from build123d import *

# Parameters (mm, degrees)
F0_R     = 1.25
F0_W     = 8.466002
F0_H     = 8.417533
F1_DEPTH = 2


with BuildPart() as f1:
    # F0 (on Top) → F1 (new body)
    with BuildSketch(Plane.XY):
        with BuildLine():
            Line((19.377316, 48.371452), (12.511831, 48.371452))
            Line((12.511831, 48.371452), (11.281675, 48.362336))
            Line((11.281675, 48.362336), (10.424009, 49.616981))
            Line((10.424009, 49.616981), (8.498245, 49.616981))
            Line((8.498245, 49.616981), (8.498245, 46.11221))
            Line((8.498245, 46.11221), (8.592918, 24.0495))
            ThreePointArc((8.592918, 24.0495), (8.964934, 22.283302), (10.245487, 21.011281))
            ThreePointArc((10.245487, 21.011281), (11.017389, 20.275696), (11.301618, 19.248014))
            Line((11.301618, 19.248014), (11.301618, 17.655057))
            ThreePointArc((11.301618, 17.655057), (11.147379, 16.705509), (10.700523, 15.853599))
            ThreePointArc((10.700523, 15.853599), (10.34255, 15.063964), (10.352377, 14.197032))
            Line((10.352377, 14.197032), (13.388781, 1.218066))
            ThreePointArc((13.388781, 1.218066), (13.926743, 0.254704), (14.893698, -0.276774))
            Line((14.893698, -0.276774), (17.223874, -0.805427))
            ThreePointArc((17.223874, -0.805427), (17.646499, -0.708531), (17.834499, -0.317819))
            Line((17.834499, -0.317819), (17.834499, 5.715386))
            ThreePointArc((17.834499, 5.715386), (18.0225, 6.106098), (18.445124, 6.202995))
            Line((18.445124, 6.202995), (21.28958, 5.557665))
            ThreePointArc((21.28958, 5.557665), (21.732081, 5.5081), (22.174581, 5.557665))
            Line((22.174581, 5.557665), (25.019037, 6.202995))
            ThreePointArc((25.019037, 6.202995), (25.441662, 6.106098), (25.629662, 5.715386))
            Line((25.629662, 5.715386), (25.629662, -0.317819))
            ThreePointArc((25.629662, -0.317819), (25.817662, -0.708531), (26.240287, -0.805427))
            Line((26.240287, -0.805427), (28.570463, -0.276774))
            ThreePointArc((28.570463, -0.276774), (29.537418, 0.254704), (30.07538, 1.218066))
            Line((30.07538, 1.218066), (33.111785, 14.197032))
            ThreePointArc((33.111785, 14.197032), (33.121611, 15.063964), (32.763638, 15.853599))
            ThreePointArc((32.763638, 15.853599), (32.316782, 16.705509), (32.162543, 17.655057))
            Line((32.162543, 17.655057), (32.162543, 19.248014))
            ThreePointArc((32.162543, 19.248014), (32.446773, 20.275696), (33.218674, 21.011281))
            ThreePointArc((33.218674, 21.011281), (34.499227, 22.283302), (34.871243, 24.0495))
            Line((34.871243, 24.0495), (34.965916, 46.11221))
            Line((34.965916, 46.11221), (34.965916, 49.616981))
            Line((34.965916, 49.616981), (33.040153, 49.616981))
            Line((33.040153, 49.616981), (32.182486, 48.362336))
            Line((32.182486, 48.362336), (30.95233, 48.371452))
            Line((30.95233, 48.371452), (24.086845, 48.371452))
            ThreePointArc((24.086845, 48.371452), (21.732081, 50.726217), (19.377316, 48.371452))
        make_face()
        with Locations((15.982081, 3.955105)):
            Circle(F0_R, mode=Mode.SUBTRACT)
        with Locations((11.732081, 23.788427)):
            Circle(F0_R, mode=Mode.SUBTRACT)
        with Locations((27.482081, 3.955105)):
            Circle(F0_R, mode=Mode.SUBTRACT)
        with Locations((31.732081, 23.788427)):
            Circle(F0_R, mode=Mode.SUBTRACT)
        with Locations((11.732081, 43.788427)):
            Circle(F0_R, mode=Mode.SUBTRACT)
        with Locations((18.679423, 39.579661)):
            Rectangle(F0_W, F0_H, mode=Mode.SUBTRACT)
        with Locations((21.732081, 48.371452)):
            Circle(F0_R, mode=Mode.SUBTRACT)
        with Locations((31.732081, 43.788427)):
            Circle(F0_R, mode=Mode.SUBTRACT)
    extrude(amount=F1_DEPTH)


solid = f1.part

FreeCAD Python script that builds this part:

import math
import FreeCAD as App
import Part
import Sketcher
Q = App.Units.Quantity

doc = App.newDocument("Part")
body = doc.addObject("PartDesign::Body", "Body")

sketch1 = body.newObject("Sketcher::SketchObject", "Sketch")
sketch1.AttachmentSupport = (doc.getObject("XY_Plane"), [""])
sketch1.MapMode = "FlatFace"
sketch1.addGeometry([
    Part.LineSegment(App.Vector(19.377316, 48.371452, 0), App.Vector(12.511831, 48.371452, 0)),
    Part.LineSegment(App.Vector(12.511831, 48.371452, 0), App.Vector(11.281675, 48.362336, 0)),
    Part.LineSegment(App.Vector(11.281675, 48.362336, 0), App.Vector(10.424009, 49.616981, 0)),
    Part.LineSegment(App.Vector(10.424009, 49.616981, 0), App.Vector(8.498245, 49.616981, 0)),
    Part.LineSegment(App.Vector(8.498245, 49.616981, 0), App.Vector(8.498245, 46.11221, 0)),
    Part.LineSegment(App.Vector(8.498245, 46.11221, 0), App.Vector(8.592918, 24.0495, 0)),
    Part.ArcOfCircle(Part.Circle(App.Vector(11.73208, 23.788427, 0), App.Vector(0, 0, 1), 3.149999), math.radians(175.245847), math.radians(241.840069)),
    Part.ArcOfCircle(Part.Circle(App.Vector(9.301619, 19.248015, 0), App.Vector(0, 0, 1), 1.999999), math.radians(-0.000016), math.radians(61.84008)),
    Part.LineSegment(App.Vector(11.301618, 19.248014, 0), App.Vector(11.301618, 17.655057, 0)),
    Part.ArcOfCircle(Part.Circle(App.Vector(8.301615, 17.655059, 0), App.Vector(0, 0, 1), 3.000003), math.radians(-36.904721), math.radians(-0.000038)),
    Part.ArcOfCircle(Part.Circle(App.Vector(12.29979, 14.652628, 0), App.Vector(0, 0, 1), 1.999996), math.radians(143.095257), math.radians(193.1675)),
    Part.LineSegment(App.Vector(10.352377, 14.197032, 0), App.Vector(13.388781, 1.218066, 0)),
    Part.ArcOfCircle(Part.Circle(App.Vector(15.336197, 1.673659, 0), App.Vector(0, 0, 1), 1.999999), math.radians(-166.832607), math.radians(-102.78245)),
    Part.LineSegment(App.Vector(14.893698, -0.276774, 0), App.Vector(17.223874, -0.805427, 0)),
    Part.ArcOfCircle(Part.Circle(App.Vector(17.3345, -0.317819, 0), App.Vector(0, 0, 1), 0.499999), math.radians(-102.782535), math.radians(0.000008)),
    Part.LineSegment(App.Vector(17.834499, -0.317819, 0), App.Vector(17.834499, 5.715386, 0)),
    Part.ArcOfCircle(Part.Circle(App.Vector(18.334501, 5.715384, 0), App.Vector(0, 0, 1), 0.500002), math.radians(77.2178), math.radians(179.999788)),
    Part.LineSegment(App.Vector(18.445124, 6.202995, 0), App.Vector(21.28958, 5.557665, 0)),
    Part.ArcOfCircle(Part.Circle(App.Vector(21.73208, 7.508134, 0), App.Vector(0, 0, 1), 2.000034), math.radians(-102.782255), math.radians(-77.217745)),
    Part.LineSegment(App.Vector(22.174581, 5.557665, 0), App.Vector(25.019037, 6.202995, 0)),
    Part.ArcOfCircle(Part.Circle(App.Vector(25.129661, 5.715385, 0), App.Vector(0, 0, 1), 0.500001), math.radians(0.000063), math.radians(102.782349)),
    Part.LineSegment(App.Vector(25.629662, 5.715386, 0), App.Vector(25.629662, -0.317819, 0)),
    Part.ArcOfCircle(Part.Circle(App.Vector(26.129661, -0.317819, 0), App.Vector(0, 0, 1), 0.499999), math.radians(179.999992), math.radians(282.782535)),
    Part.LineSegment(App.Vector(26.240287, -0.805427, 0), App.Vector(28.570463, -0.276774, 0)),
    Part.ArcOfCircle(Part.Circle(App.Vector(28.127964, 1.673659, 0), App.Vector(0, 0, 1), 1.999999), math.radians(-77.21755), math.radians(-13.167393)),
    Part.LineSegment(App.Vector(30.07538, 1.218066, 0), App.Vector(33.111785, 14.197032, 0)),
    Part.ArcOfCircle(Part.Circle(App.Vector(31.164366, 14.652626, 0), App.Vector(0, 0, 1), 2.000002), math.radians(-13.167401), math.radians(36.90471)),
    Part.ArcOfCircle(Part.Circle(App.Vector(35.162546, 17.655059, 0), App.Vector(0, 0, 1), 3.000003), math.radians(-179.999962), math.radians(-143.095279)),
    Part.LineSegment(App.Vector(32.162543, 17.655057, 0), App.Vector(32.162543, 19.248014, 0)),
    Part.ArcOfCircle(Part.Circle(App.Vector(34.162547, 19.248011, 0), App.Vector(0, 0, 1), 2.000004), math.radians(118.160009), math.radians(179.999928)),
    Part.ArcOfCircle(Part.Circle(App.Vector(31.732081, 23.788427, 0), App.Vector(0, 0, 1), 3.149999), math.radians(-61.840069), math.radians(4.754153)),
    Part.LineSegment(App.Vector(34.871243, 24.0495, 0), App.Vector(34.965916, 46.11221, 0)),
    Part.LineSegment(App.Vector(34.965916, 46.11221, 0), App.Vector(34.965916, 49.616981, 0)),
    Part.LineSegment(App.Vector(34.965916, 49.616981, 0), App.Vector(33.040153, 49.616981, 0)),
    Part.LineSegment(App.Vector(33.040153, 49.616981, 0), App.Vector(32.182486, 48.362336, 0)),
    Part.LineSegment(App.Vector(32.182486, 48.362336, 0), App.Vector(30.95233, 48.371452, 0)),
    Part.LineSegment(App.Vector(30.95233, 48.371452, 0), App.Vector(24.086845, 48.371452, 0)),
    Part.ArcOfCircle(Part.Circle(App.Vector(21.73208, 48.371452, 0), App.Vector(0, 0, 1), 2.354764), math.radians(-0.000012), math.radians(180.000012)),
    Part.Circle(App.Vector(15.982081, 3.955105, 0), App.Vector(0, 0, 1), 1.25),
    Part.Circle(App.Vector(11.732081, 23.788427, 0), App.Vector(0, 0, 1), 1.25),
    Part.Circle(App.Vector(27.482081, 3.955105, 0), App.Vector(0, 0, 1), 1.25),
    Part.Circle(App.Vector(31.732081, 23.788427, 0), App.Vector(0, 0, 1), 1.25),
    Part.Circle(App.Vector(11.732081, 43.788427, 0), App.Vector(0, 0, 1), 1.25),
    Part.LineSegment(App.Vector(22.912424, 35.370894, 0), App.Vector(14.446422, 35.370894, 0)),
    Part.LineSegment(App.Vector(14.446422, 35.370894, 0), App.Vector(14.446422, 43.788427, 0)),
    Part.LineSegment(App.Vector(14.446422, 43.788427, 0), App.Vector(22.912424, 43.788427, 0)),
    Part.LineSegment(App.Vector(22.912424, 43.788427, 0), App.Vector(22.912424, 35.370894, 0)),
    Part.Circle(App.Vector(21.732081, 48.371452, 0), App.Vector(0, 0, 1), 1.25),
    Part.Circle(App.Vector(31.732081, 43.788427, 0), App.Vector(0, 0, 1), 1.25),
], False)
sketch1.addConstraint([
    Sketcher.Constraint("Coincident", 0, 2, 1, 1),
    Sketcher.Constraint("Coincident", 1, 2, 2, 1),
    Sketcher.Constraint("Coincident", 2, 2, 3, 1),
    Sketcher.Constraint("Coincident", 3, 2, 4, 1),
    Sketcher.Constraint("Coincident", 4, 2, 5, 1),
    Sketcher.Constraint("Coincident", 5, 2, 6, 1),
    Sketcher.Constraint("Tangent", 6, 2, 7, 2),
    Sketcher.Constraint("Tangent", 7, 1, 8, 1),
    Sketcher.Constraint("Tangent", 8, 2, 9, 2),
    Sketcher.Constraint("Tangent", 9, 1, 10, 1),
    Sketcher.Constraint("Tangent", 10, 2, 11, 1),
    Sketcher.Constraint("Tangent", 11, 2, 12, 1),
    Sketcher.Constraint("Tangent", 12, 2, 13, 1),
    Sketcher.Constraint("Tangent", 13, 2, 14, 1),
    Sketcher.Constraint("Tangent", 14, 2, 15, 1),
    Sketcher.Constraint("Coincident", 15, 2, 16, 2),
    Sketcher.Constraint("Coincident", 16, 1, 17, 1),
    Sketcher.Constraint("Coincident", 17, 2, 18, 1),
    Sketcher.Constraint("Coincident", 18, 2, 19, 1),
    Sketcher.Constraint("Coincident", 19, 2, 20, 2),
    Sketcher.Constraint("Tangent", 20, 1, 21, 1),
    Sketcher.Constraint("Tangent", 21, 2, 22, 1),
    Sketcher.Constraint("Tangent", 22, 2, 23, 1),
    Sketcher.Constraint("Tangent", 23, 2, 24, 1),
    Sketcher.Constraint("Tangent", 24, 2, 25, 1),
    Sketcher.Constraint("Tangent", 25, 2, 26, 1),
    Sketcher.Constraint("Tangent", 26, 2, 27, 2),
    Sketcher.Constraint("Tangent", 27, 1, 28, 1),
    Sketcher.Constraint("Tangent", 28, 2, 29, 2),
    Sketcher.Constraint("Tangent", 29, 1, 30, 1),
    Sketcher.Constraint("Coincident", 30, 2, 31, 1),
    Sketcher.Constraint("Coincident", 31, 2, 32, 1),
    Sketcher.Constraint("Coincident", 32, 2, 33, 1),
    Sketcher.Constraint("Coincident", 33, 2, 34, 1),
    Sketcher.Constraint("Coincident", 34, 2, 35, 1),
    Sketcher.Constraint("Coincident", 35, 2, 36, 1),
    Sketcher.Constraint("Coincident", 36, 2, 37, 1),
    Sketcher.Constraint("Coincident", 37, 2, 0, 1),
    Sketcher.Constraint("Coincident", 43, 2, 44, 1),
    Sketcher.Constraint("Coincident", 44, 2, 45, 1),
    Sketcher.Constraint("Coincident", 45, 2, 46, 1),
    Sketcher.Constraint("Coincident", 46, 2, 43, 1),
    Sketcher.Constraint("Horizontal", 0),
    Sketcher.Constraint("Horizontal", 3),
    Sketcher.Constraint("Vertical", 4),
    Sketcher.Constraint("Vertical", 8),
    Sketcher.Constraint("Vertical", 15),
    Sketcher.Constraint("Vertical", 21),
    Sketcher.Constraint("Vertical", 28),
    Sketcher.Constraint("Vertical", 32),
    Sketcher.Constraint("Horizontal", 33),
    Sketcher.Constraint("Horizontal", 36),
    Sketcher.Constraint("Horizontal", 43),
    Sketcher.Constraint("Vertical", 44),
    Sketcher.Constraint("Horizontal", 45),
    Sketcher.Constraint("Vertical", 46),
    Sketcher.Constraint("Coincident", 39, 3, 6, 3),
    Sketcher.Constraint("Coincident", 41, 3, 30, 3),
    Sketcher.Constraint("Coincident", 47, 3, 37, 3),
    Sketcher.Constraint("Equal", 7, 12),
    Sketcher.Constraint("Equal", 16, 20),
    Sketcher.Constraint("Equal", 20, 22),
    Sketcher.Constraint("Equal", 12, 24),
    Sketcher.Constraint("Equal", 9, 27),
    Sketcher.Constraint("Equal", 6, 30),
    Sketcher.Constraint("Equal", 38, 39),
    Sketcher.Constraint("Equal", 39, 40),
    Sketcher.Constraint("Equal", 40, 41),
    Sketcher.Constraint("Equal", 41, 42),
    Sketcher.Constraint("Equal", 42, 47),
    Sketcher.Constraint("Equal", 47, 48),
    Sketcher.Constraint("Parallel", 13, 17),
    Sketcher.Constraint("Parallel", 19, 23),
    Sketcher.Constraint("Horizontal", 16, 3, 20, 3),
    Sketcher.Constraint("Horizontal", 14, 3, 22, 3),
    Sketcher.Constraint("Horizontal", 12, 3, 24, 3),
    Sketcher.Constraint("Horizontal", 9, 3, 27, 3),
    Sketcher.Constraint("Horizontal", 6, 3, 30, 3),
    Sketcher.Constraint("Horizontal", 38, 3, 40, 3),
    Sketcher.Constraint("Horizontal", 42, 3, 48, 3),
    Sketcher.Constraint("Horizontal", 47, 3, 0, 2),
    Sketcher.Constraint("Horizontal", 20, 3, 15, 2),
    Sketcher.Constraint("Horizontal", 17, 2, 18, 2),
    Sketcher.Constraint("Horizontal", 16, 1, 19, 2),
    Sketcher.Constraint("Horizontal", 13, 2, 22, 2),
    Sketcher.Constraint("Horizontal", 12, 2, 23, 2),
    Sketcher.Constraint("Horizontal", 11, 2, 24, 2),
    Sketcher.Constraint("Horizontal", 10, 2, 25, 2),
    Sketcher.Constraint("Horizontal", 9, 1, 26, 2),
    Sketcher.Constraint("Horizontal", 7, 1, 28, 2),
    Sketcher.Constraint("Horizontal", 6, 2, 29, 1),
    Sketcher.Constraint("Horizontal", 5, 2, 30, 2),
    Sketcher.Constraint("Horizontal", 4, 2, 31, 2),
    Sketcher.Constraint("Horizontal", 3, 2, 32, 2),
    Sketcher.Constraint("Horizontal", 1, 2, 34, 2),
    Sketcher.Constraint("Horizontal", 0, 2, 35, 2),
    Sketcher.Constraint("Horizontal", 48, 3, 44, 2),
    Sketcher.Constraint("Vertical", 18, 3, 37, 3),
    Sketcher.Constraint("Vertical", 39, 3, 42, 3),
    Sketcher.Constraint("Vertical", 41, 3, 48, 3),
    Sketcher.Constraint("Equal", 3, 33),
    Sketcher.Constraint("Equal", 0, 36),
    Sketcher.Constraint("Equal", 2, 34),
    Sketcher.Constraint("Equal", 1, 35),
    Sketcher.Constraint("Radius", 7, Q("1.999999 mm")),
    Sketcher.Constraint("Radius", 26, Q("2.000002 mm")),
    Sketcher.Constraint("Diameter", 38, Q("2.5 mm")),
    Sketcher.Constraint("Radius", 14, Q("0.499999 mm")),
    Sketcher.Constraint("Radius", 6, Q("3.149999 mm")),
    Sketcher.Constraint("Radius", 9, Q("3.000003 mm")),
    Sketcher.Constraint("Radius", 18, Q("2.000034 mm")),
    Sketcher.Constraint("Radius", 37, Q("2.354764 mm")),
    Sketcher.Constraint("DistanceY", 4, 2, 4, 1, Q("3.504771 mm")),
    Sketcher.Constraint("DistanceX", -1, 1, 14, 3, Q("17.3345 mm")),
    Sketcher.Constraint("DistanceY", -1, 1, 5, 2, Q("24.0495 mm")),
    Sketcher.Constraint("DistanceY", -1, 1, 9, 1, Q("15.853599 mm")),
    Sketcher.Constraint("DistanceX", -1, 1, 12, 2, Q("14.893698 mm")),
    Sketcher.Constraint("Distance", 1, Q("1.23019 mm")),
    Sketcher.Constraint("Distance", 17, Q("2.916741 mm")),
    Sketcher.Constraint("Distance", 34, Q("1.519779 mm")),
    Sketcher.Constraint("DistanceX", 0, 2, 0, 1, Q("6.865485 mm")),
    Sketcher.Constraint("DistanceX", 3, 2, 3, 1, Q("1.925764 mm")),
    Sketcher.Constraint("DistanceX", 43, 2, 43, 1, Q("8.466002 mm")),
    Sketcher.Constraint("DistanceY", 8, 2, 8, 1, Q("1.592957 mm")),
    Sketcher.Constraint("DistanceY", 15, 1, 15, 2, Q("6.033205 mm")),
    Sketcher.Constraint("DistanceY", 44, 1, 44, 2, Q("8.417533 mm")),
    Sketcher.Constraint("DistanceX", -1, 1, 6, 3, Q("11.73208 mm")),
    Sketcher.Constraint("DistanceX", -1, 1, 7, 3, Q("9.301619 mm")),
    Sketcher.Constraint("DistanceY", -1, 1, 9, 3, Q("17.655059 mm")),
    Sketcher.Constraint("DistanceY", -1, 1, 12, 3, Q("1.673659 mm")),
    Sketcher.Constraint("DistanceY", 14, 3, -1, 1, Q("0.317819 mm")),
    Sketcher.Constraint("DistanceX", -1, 1, 18, 3, Q("21.73208 mm")),
    Sketcher.Constraint("DistanceX", -1, 1, 38, 3, Q("15.982081 mm")),
    Sketcher.Constraint("DistanceX", -1, 1, 40, 3, Q("27.482081 mm")),
    Sketcher.Constraint("DistanceY", -1, 1, 47, 3, Q("48.371452 mm")),
    Sketcher.Constraint("DistanceX", -1, 1, 2, 2, Q("10.424009 mm")),
    Sketcher.Constraint("DistanceY", -1, 1, 2, 2, Q("49.616981 mm")),
    Sketcher.Constraint("DistanceX", -1, 1, 17, 2, Q("21.28958 mm")),
    Sketcher.Constraint("DistanceY", -1, 1, 38, 3, Q("3.955105 mm")),
    Sketcher.Constraint("DistanceY", -1, 1, 42, 3, Q("43.788427 mm")),
    Sketcher.Constraint("DistanceX", -1, 1, 43, 2, Q("14.446422 mm")),
])
pad1 = body.newObject("PartDesign::Pad", "Pad")
pad1.Profile = sketch1
pad1.Length = 2

doc.recompute()
